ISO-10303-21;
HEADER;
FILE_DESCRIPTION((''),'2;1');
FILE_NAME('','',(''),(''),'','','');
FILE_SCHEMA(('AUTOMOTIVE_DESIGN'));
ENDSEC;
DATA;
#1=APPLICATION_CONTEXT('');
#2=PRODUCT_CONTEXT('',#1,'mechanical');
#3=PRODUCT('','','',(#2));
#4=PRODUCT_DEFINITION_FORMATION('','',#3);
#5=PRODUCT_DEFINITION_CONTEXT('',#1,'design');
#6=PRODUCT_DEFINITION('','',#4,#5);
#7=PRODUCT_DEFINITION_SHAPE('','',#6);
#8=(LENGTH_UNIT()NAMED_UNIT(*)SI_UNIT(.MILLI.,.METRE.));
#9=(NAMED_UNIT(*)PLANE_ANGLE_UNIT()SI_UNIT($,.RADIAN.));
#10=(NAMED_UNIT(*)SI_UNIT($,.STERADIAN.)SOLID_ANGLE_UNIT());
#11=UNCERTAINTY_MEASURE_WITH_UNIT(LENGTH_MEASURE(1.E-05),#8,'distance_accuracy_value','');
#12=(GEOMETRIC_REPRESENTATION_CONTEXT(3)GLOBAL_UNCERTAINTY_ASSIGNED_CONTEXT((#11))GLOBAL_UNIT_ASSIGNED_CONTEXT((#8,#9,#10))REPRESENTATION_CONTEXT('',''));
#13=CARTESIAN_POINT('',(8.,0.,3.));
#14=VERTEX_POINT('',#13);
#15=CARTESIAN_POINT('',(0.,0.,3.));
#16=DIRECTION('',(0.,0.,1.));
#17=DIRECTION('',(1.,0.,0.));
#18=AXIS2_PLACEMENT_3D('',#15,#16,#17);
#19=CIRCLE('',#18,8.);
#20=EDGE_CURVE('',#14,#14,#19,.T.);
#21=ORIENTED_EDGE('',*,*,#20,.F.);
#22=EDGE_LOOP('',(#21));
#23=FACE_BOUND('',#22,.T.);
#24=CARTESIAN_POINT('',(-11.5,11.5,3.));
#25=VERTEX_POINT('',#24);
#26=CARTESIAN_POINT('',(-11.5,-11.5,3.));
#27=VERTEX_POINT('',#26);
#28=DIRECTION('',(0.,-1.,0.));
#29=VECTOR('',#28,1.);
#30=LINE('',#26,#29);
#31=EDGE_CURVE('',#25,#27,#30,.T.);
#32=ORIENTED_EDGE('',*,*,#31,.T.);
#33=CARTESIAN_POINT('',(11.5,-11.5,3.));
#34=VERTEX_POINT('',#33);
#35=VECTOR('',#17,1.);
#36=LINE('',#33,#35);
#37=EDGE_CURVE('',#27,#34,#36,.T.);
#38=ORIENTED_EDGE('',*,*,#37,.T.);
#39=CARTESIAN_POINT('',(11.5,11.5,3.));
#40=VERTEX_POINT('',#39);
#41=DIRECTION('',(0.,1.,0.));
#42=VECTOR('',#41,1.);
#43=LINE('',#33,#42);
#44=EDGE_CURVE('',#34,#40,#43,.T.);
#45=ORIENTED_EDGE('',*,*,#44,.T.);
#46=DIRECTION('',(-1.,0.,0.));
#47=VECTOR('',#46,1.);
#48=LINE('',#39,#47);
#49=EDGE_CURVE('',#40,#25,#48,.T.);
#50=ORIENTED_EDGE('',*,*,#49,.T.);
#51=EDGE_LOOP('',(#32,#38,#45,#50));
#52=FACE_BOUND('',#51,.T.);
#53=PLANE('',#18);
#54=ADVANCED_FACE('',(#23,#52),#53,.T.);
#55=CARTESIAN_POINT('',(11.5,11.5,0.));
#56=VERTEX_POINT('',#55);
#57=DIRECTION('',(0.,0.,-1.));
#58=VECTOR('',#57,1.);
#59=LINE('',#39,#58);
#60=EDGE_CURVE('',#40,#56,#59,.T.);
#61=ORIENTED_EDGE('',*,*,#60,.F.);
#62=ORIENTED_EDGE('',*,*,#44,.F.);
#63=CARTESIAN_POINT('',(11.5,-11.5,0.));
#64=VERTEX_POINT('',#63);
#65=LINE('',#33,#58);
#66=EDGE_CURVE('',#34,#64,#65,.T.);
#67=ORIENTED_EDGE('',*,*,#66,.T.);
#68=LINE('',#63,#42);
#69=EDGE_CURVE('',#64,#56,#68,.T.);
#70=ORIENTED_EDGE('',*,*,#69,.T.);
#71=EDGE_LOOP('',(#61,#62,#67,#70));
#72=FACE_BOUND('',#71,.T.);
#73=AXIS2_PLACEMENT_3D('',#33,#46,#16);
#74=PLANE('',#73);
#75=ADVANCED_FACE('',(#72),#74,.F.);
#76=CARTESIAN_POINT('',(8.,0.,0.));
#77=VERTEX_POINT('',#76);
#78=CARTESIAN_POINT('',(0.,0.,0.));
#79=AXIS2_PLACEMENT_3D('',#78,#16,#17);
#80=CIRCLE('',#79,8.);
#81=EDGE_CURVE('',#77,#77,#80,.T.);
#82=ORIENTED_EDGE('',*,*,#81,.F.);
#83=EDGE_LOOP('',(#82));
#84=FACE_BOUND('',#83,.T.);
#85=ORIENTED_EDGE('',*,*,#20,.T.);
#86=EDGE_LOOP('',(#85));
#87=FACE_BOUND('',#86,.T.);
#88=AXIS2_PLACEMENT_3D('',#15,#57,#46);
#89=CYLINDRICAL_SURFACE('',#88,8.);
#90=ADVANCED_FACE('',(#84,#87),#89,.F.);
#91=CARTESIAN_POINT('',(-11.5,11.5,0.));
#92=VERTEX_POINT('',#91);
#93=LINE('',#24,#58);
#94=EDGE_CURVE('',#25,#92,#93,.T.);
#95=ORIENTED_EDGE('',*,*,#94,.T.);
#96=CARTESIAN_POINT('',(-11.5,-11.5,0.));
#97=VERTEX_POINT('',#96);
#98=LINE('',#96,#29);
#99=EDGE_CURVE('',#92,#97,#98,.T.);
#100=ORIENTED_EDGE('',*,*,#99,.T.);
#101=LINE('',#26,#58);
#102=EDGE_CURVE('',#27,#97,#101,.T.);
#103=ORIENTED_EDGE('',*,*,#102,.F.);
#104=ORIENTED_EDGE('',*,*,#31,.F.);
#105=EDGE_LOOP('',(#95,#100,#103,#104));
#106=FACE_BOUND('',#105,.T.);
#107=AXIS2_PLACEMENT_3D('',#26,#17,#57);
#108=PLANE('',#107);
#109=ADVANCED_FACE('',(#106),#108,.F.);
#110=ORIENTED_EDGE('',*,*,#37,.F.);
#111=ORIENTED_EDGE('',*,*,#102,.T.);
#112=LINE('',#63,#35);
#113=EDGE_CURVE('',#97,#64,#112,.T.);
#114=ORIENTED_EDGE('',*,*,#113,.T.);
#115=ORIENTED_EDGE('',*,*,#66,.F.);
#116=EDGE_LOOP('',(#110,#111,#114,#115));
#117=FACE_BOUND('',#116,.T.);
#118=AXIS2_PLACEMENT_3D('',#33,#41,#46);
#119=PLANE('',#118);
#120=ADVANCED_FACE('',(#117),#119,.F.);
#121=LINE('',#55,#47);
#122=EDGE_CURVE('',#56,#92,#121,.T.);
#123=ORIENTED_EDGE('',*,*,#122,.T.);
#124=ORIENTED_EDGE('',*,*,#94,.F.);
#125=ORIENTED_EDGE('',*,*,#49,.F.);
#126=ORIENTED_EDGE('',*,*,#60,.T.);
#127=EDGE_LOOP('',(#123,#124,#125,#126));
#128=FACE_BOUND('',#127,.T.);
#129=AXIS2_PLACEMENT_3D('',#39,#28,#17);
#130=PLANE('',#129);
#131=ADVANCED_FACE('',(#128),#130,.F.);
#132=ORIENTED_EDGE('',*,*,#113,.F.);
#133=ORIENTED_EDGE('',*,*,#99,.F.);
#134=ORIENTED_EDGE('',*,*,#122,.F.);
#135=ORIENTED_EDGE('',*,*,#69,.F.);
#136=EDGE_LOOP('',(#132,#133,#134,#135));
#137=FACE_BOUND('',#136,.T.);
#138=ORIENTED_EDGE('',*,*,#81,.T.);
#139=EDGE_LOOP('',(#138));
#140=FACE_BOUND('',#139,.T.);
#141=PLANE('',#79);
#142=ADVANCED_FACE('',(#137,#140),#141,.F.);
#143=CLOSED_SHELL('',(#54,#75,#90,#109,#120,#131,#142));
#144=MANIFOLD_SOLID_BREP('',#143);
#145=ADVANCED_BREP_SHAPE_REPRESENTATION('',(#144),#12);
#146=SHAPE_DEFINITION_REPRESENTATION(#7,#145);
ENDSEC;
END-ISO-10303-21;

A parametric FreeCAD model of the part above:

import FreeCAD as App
import Part
import Sketcher
Q = App.Units.Quantity


def add_polygon(sketch, points):
    """Adds a closed chain of lines whose ends are joined by coincident constraints."""
    first, n = sketch.GeometryCount, len(points)
    for a, b in zip(points, points[1:] + points[:1]):
        sketch.addGeometry(Part.LineSegment(App.Vector(*a, 0), App.Vector(*b, 0)), False)
    for i in range(n):
        sketch.addConstraint(Sketcher.Constraint("Coincident", first + i, 2, first + (i + 1) % n, 1))

doc = App.newDocument("Part")
body = doc.addObject("PartDesign::Body", "Body")

sketch1 = body.newObject("Sketcher::SketchObject", "Sketch")
sketch1.AttachmentSupport = (doc.getObject("XY_Plane"), [""])
sketch1.MapMode = "FlatFace"
add_polygon(sketch1, [(-12, 12), (-12, -12), (12, -12), (12, 12)])
sketch1.addGeometry(Part.Circle(App.Vector(0, 0, 0), App.Vector(0, 0, 1), 8), False)
sketch1.addConstraint([
    Sketcher.Constraint("Vertical", 0),
    Sketcher.Constraint("Horizontal", 1),
    Sketcher.Constraint("Vertical", 2),
    Sketcher.Constraint("Horizontal", 3),
    Sketcher.Constraint("Coincident", 4, 3, -1, 1),
    Sketcher.Constraint("Symmetric", 0, 2, 2, 2, -1, 1),
    Sketcher.Constraint("Equal", 3, 0),
    Sketcher.Constraint("Diameter", 4, Q("16 mm")),
    Sketcher.Constraint("DistanceX", 1, 1, 1, 2, Q("23 mm")),
])
pad1 = body.newObject("PartDesign::Pad", "Pad")
pad1.Profile = sketch1
pad1.Length = 3

doc.recompute()
